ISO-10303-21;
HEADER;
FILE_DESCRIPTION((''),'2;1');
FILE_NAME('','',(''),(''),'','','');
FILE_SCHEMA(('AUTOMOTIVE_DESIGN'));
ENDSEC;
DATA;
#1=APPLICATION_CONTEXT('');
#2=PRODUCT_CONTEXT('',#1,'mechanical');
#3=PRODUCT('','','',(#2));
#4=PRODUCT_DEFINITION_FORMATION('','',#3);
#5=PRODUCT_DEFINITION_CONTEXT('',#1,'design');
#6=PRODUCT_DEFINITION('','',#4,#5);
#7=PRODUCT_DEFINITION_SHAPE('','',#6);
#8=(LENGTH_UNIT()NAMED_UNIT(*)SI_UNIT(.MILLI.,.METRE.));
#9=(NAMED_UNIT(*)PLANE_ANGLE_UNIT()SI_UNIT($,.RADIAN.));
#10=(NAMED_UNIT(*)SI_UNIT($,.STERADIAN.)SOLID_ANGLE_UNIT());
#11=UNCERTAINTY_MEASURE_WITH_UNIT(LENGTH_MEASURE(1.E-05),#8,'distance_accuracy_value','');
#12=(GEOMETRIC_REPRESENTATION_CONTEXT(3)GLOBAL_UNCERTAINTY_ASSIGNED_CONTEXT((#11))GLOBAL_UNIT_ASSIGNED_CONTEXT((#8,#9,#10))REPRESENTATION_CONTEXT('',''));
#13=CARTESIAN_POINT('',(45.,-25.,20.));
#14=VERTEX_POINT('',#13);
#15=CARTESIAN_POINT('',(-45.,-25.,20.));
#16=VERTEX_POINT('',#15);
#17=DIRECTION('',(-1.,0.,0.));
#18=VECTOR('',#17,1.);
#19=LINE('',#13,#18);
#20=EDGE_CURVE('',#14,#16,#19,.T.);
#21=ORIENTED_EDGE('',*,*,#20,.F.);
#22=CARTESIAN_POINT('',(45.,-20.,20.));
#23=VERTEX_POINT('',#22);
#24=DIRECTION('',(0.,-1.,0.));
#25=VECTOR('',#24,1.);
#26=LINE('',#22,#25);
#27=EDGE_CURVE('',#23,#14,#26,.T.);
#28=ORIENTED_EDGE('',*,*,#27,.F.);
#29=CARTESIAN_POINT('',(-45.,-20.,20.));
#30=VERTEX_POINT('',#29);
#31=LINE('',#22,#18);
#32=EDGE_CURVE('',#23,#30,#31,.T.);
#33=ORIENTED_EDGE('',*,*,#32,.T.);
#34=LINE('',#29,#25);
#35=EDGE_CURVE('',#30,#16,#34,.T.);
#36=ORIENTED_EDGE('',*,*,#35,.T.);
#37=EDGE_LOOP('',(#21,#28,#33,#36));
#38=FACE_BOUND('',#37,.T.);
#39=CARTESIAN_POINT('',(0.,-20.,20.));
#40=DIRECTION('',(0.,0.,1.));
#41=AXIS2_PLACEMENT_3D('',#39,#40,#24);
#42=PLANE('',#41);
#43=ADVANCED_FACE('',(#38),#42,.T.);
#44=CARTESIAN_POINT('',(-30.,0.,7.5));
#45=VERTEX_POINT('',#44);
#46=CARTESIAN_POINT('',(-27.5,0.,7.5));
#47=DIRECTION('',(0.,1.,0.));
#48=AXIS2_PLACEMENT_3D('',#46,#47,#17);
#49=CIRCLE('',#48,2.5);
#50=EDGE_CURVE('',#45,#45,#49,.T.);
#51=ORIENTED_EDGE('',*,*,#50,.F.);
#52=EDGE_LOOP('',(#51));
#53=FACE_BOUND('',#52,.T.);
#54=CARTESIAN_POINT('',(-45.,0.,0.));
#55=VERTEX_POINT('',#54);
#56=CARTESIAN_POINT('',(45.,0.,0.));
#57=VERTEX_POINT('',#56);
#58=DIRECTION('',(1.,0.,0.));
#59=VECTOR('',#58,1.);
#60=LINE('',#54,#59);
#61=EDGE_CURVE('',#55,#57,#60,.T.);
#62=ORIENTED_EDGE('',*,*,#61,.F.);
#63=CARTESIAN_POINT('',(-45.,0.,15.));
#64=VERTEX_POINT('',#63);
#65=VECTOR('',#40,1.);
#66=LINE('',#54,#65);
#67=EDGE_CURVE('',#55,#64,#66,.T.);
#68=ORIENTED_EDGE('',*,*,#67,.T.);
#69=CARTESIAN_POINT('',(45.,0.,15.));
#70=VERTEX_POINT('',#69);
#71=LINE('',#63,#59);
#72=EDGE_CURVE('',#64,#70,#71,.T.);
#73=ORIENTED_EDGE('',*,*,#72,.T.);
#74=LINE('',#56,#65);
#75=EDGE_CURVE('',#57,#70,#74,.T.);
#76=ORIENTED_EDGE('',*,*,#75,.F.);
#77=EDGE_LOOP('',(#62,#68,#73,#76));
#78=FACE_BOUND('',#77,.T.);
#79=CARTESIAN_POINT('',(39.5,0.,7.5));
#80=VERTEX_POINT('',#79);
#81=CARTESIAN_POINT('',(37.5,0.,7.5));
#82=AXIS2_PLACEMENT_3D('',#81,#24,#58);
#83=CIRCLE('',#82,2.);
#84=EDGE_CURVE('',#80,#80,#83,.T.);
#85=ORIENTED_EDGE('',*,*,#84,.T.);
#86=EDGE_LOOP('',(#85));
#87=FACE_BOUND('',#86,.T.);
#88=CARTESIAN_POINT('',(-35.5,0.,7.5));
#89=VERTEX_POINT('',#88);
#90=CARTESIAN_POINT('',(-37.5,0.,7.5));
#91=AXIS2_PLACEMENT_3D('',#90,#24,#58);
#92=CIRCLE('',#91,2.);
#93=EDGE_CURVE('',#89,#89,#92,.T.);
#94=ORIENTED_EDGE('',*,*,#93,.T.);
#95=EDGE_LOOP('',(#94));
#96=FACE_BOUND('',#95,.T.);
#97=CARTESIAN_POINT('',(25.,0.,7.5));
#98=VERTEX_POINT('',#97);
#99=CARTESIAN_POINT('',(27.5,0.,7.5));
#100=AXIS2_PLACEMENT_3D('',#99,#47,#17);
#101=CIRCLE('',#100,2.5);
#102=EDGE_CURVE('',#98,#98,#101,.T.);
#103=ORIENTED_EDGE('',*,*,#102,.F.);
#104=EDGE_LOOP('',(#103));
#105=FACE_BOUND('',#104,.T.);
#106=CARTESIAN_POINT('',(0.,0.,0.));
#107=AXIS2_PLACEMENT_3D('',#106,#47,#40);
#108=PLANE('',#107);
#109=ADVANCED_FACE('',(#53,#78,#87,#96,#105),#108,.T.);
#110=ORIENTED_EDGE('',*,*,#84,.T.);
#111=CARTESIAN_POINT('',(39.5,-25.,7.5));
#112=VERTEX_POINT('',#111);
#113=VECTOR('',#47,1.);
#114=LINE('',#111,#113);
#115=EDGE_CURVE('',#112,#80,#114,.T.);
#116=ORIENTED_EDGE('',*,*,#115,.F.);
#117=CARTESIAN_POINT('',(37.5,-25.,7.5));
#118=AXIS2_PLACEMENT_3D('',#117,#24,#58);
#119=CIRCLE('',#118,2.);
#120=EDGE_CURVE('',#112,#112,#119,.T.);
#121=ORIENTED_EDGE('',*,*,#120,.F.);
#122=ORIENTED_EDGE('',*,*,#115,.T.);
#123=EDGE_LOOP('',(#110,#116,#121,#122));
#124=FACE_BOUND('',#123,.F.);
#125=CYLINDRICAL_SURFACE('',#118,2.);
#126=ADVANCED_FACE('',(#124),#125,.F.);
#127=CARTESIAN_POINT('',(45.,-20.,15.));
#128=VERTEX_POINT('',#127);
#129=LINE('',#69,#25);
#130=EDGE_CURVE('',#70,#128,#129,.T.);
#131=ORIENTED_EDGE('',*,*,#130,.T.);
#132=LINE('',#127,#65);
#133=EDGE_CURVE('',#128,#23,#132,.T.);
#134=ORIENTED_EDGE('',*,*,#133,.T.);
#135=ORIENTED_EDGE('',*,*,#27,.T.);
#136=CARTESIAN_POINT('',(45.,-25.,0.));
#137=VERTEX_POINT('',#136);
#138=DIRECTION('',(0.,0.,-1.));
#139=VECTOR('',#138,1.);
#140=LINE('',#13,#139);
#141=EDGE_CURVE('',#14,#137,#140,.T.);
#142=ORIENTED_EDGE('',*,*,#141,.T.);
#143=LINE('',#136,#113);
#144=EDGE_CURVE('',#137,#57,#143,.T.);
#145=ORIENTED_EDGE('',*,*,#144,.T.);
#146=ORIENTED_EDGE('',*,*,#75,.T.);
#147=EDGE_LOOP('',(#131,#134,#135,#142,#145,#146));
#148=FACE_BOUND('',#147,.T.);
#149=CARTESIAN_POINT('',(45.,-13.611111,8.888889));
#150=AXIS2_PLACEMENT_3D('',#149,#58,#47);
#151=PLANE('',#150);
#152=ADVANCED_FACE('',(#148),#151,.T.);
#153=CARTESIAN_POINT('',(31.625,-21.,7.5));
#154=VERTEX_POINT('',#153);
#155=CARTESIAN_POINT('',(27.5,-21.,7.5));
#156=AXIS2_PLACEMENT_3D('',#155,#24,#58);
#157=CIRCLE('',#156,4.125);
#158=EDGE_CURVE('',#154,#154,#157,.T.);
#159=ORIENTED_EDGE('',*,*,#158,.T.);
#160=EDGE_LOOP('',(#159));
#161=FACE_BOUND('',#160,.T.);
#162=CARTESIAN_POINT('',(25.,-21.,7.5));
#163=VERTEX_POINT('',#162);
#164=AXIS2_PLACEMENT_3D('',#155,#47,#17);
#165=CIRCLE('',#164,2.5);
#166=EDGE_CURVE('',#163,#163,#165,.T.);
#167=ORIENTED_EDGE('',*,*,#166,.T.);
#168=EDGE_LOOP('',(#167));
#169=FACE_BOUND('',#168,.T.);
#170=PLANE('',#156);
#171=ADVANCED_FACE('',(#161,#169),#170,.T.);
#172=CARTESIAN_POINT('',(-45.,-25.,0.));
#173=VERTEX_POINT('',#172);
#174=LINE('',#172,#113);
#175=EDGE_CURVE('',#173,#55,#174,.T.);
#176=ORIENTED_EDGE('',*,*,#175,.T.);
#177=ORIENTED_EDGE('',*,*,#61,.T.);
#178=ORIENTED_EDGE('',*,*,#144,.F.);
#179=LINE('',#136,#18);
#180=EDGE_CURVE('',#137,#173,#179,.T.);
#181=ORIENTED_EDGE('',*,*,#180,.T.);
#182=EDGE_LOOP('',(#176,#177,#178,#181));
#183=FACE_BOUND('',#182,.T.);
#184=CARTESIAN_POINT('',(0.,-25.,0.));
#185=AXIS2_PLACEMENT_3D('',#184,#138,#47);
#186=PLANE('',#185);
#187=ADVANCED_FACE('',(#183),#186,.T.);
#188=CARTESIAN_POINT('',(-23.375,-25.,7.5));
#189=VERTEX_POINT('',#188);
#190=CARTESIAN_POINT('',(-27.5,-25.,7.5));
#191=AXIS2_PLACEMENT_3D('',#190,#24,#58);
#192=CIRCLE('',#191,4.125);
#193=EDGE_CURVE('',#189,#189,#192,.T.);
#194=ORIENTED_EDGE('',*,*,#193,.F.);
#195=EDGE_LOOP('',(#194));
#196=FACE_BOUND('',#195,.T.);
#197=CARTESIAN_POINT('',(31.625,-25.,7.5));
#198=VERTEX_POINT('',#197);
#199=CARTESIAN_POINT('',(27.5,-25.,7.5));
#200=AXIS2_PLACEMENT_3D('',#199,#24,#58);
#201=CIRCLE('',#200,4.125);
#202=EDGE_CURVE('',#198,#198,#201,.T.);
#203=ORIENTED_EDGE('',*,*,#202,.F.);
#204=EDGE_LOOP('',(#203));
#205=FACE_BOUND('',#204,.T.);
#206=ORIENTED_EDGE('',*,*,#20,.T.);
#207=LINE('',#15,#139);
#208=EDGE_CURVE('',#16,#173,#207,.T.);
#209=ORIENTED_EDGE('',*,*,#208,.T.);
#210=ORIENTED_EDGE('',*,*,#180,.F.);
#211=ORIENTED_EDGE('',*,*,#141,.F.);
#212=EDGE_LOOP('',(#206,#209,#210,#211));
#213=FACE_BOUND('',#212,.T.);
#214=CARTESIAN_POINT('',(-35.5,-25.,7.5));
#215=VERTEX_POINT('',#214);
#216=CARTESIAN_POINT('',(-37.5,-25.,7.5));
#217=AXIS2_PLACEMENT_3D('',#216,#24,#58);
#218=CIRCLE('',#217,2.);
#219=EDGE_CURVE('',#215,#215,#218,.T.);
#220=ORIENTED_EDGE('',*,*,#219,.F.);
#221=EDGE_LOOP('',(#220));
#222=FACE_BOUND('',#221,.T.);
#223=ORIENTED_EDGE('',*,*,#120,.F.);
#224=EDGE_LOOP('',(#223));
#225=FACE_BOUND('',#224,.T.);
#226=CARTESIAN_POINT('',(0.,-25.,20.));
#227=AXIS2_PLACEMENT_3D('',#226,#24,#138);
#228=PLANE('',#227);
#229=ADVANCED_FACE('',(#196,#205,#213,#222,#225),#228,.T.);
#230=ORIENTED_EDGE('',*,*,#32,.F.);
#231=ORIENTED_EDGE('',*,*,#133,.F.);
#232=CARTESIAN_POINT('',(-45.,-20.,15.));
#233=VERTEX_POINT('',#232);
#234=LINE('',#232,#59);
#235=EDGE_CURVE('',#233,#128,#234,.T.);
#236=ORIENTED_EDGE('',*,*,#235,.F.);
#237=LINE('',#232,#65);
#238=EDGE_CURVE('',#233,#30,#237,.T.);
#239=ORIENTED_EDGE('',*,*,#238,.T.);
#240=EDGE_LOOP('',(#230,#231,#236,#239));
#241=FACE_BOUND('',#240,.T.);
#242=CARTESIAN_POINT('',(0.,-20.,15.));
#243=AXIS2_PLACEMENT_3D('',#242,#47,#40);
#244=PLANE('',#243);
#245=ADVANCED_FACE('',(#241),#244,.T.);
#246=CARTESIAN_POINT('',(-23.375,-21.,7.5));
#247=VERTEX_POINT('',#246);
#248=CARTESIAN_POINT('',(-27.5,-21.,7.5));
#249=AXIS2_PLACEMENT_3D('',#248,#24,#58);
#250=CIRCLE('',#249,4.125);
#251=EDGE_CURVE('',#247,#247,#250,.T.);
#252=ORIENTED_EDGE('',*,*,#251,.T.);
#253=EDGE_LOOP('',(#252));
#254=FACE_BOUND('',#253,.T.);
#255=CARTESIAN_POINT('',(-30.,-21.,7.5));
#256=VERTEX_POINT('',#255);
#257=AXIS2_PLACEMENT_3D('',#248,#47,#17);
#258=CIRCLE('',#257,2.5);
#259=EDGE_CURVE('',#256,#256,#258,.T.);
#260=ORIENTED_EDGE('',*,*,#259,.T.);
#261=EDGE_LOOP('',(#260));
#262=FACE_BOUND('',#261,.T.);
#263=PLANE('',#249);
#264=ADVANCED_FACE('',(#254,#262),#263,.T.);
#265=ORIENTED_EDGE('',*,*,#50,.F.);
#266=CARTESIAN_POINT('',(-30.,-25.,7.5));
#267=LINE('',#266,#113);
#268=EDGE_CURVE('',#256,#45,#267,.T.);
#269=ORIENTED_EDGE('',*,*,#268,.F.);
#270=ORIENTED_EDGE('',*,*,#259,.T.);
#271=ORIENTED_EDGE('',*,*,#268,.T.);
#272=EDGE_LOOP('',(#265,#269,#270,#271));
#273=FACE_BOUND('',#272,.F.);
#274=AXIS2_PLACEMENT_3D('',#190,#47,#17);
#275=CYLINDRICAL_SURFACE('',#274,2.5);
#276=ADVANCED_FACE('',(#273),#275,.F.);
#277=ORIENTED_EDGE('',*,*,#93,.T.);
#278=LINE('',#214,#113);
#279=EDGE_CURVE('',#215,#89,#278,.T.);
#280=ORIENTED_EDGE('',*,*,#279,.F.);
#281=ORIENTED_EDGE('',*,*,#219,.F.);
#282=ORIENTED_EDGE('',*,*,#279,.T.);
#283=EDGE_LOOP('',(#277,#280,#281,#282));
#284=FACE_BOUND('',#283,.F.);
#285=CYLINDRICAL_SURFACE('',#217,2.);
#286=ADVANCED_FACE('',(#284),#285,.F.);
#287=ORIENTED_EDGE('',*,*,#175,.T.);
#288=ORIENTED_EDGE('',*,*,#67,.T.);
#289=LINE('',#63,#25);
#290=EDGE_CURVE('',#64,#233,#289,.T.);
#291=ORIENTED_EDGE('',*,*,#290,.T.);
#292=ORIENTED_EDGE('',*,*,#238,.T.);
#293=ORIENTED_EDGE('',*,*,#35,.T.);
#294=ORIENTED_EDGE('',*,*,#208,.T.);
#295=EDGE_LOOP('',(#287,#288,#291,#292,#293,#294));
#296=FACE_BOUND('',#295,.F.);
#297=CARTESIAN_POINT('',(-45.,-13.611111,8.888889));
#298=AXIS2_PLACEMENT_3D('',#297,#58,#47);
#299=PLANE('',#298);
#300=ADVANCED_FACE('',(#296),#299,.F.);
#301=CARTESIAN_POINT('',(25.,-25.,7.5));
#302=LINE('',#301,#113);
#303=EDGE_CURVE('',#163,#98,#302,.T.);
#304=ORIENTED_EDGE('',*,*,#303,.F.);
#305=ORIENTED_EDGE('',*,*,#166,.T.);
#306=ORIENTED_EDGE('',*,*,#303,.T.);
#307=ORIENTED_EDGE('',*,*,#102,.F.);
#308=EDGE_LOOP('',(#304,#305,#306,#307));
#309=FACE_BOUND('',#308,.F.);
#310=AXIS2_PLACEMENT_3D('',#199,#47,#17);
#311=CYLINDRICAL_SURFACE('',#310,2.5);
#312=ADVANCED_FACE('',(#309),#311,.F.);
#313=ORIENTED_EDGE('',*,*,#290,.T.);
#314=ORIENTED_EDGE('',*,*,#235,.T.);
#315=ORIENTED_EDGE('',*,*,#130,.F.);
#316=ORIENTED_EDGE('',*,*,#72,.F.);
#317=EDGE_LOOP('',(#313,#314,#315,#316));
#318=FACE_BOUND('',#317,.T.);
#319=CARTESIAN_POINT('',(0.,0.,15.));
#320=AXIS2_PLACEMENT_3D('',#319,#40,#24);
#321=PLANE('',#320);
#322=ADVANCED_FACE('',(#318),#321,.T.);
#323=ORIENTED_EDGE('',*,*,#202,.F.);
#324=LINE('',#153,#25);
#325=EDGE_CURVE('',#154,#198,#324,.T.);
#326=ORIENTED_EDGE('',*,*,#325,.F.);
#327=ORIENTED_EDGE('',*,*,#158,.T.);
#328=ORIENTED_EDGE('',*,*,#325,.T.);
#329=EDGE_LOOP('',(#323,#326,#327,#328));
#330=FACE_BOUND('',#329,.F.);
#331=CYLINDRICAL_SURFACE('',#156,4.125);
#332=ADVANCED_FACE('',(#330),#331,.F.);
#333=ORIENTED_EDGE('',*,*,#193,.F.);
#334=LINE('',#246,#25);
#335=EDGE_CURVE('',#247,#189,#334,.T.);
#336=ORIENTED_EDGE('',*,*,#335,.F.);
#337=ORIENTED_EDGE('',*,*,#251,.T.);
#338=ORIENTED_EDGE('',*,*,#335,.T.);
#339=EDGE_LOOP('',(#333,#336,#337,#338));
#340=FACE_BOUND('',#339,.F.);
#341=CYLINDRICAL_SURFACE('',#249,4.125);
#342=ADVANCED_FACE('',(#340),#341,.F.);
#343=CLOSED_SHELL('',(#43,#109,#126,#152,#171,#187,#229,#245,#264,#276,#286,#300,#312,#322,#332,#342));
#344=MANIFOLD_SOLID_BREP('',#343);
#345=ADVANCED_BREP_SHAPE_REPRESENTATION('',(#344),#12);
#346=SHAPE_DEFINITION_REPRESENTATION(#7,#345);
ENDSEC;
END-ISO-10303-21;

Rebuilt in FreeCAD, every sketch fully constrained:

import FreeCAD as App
import Part
import Sketcher

V = App.Vector


def add_polygon(sketch, points):
    """Adds a closed chain of lines whose ends are joined by coincident constraints."""
    first, n = sketch.GeometryCount, len(points)
    for a, b in zip(points, points[1:] + points[:1]):
        sketch.addGeometry(Part.LineSegment(App.Vector(*a, 0), App.Vector(*b, 0)), False)
    for i in range(n):
        sketch.addConstraint(Sketcher.Constraint("Coincident", first + i, 2, first + (i + 1) % n, 1))

doc = App.newDocument("Part")
body = doc.addObject("PartDesign::Body", "Body")

# Sketch on YZ plane
sketch1 = body.newObject("Sketcher::SketchObject", "Sketch")
sketch1.AttachmentSupport = (doc.getObject("YZ_Plane"), [""])
sketch1.MapMode = "FlatFace"
add_polygon(sketch1, [(-25, 0), (0, 0), (0, 15), (-20, 15), (-20, 20), (-25, 20)])  # lines 0-5
sketch1.addConstraint([
    Sketcher.Constraint("Horizontal", 0),
    Sketcher.Constraint("Vertical", 1),
    Sketcher.Constraint("Horizontal", 2),
    Sketcher.Constraint("Vertical", 3),
    Sketcher.Constraint("Horizontal", 4),
    Sketcher.Constraint("Vertical", 5),
    Sketcher.Constraint("Coincident", 0, 2, -1, 1),
    Sketcher.Constraint("Equal", 4, 3),
    Sketcher.Constraint("Equal", 2, 5),
    Sketcher.Constraint("DistanceX", 0, 1, 0, 2, 25.0),
    Sketcher.Constraint("DistanceX", 2, 2, 2, 1, 20.0),
])
pad1 = body.newObject("PartDesign::Pad", "Pad")
pad1.Profile = sketch1
pad1.Length = 90
pad1.Midplane = True

# Sketch on XZ plane
sketch2 = body.newObject("Sketcher::SketchObject", "Sketch001")
sketch2.AttachmentSupport = (doc.getObject("XZ_Plane"), [""])
sketch2.MapMode = "FlatFace"
sketch2.AttachmentOffset = App.Placement(V(0, 0, 25), App.Rotation())
sketch2.addGeometry([
    Part.Circle(V(-37.5, 7.5, 0), V(0, 0, 1), 2),
    Part.Circle(V(37.5, 7.5, 0), V(0, 0, 1), 2),
], False)
sketch2.addConstraint([
    Sketcher.Constraint("Equal", 0, 1),
    Sketcher.Constraint("Symmetric", 0, 3, 1, 3, -2),
    Sketcher.Constraint("Diameter", 0, 4.0),
    Sketcher.Constraint("DistanceX", 0, 3, 1, 3, 75.0),
    Sketcher.Constraint("DistanceY", -1, 1, 0, 3, 7.5),
])
pocket1 = body.newObject("PartDesign::Pocket", "Pocket")
pocket1.Profile = sketch2
pocket1.Type = "ThroughAll"

# Sketch on XZ plane
sketch3 = body.newObject("Sketcher::SketchObject", "Sketch002")
sketch3.AttachmentSupport = (doc.getObject("XZ_Plane"), [""])
sketch3.MapMode = "FlatFace"
sketch3.AttachmentOffset = App.Placement(V(0, 0, 25), App.Rotation())
sketch3.addGeometry([
    Part.Circle(V(-27.5, 7.5, 0), V(0, 0, 1), 2.5),
    Part.Circle(V(27.5, 7.5, 0), V(0, 0, 1), 2.5),
], False)
sketch3.addConstraint([
    Sketcher.Constraint("Equal", 0, 1),
    Sketcher.Constraint("Symmetric", 0, 3, 1, 3, -2),
    Sketcher.Constraint("Diameter", 0, 5.0),
    Sketcher.Constraint("DistanceX", 0, 3, 1, 3, 55.0),
    Sketcher.Constraint("DistanceY", -1, 1, 0, 3, 7.5),
])
doc.recompute()
hole = body.newObject("PartDesign::Hole", "Hole")
hole.Profile = sketch3
hole.ThreadType = "None"
hole.Diameter = 5
hole.DepthType = "ThroughAll"
hole.HoleCutType = "Counterbore"
hole.HoleCutDiameter = 8.25
hole.HoleCutDepth = 4

doc.recompute()
